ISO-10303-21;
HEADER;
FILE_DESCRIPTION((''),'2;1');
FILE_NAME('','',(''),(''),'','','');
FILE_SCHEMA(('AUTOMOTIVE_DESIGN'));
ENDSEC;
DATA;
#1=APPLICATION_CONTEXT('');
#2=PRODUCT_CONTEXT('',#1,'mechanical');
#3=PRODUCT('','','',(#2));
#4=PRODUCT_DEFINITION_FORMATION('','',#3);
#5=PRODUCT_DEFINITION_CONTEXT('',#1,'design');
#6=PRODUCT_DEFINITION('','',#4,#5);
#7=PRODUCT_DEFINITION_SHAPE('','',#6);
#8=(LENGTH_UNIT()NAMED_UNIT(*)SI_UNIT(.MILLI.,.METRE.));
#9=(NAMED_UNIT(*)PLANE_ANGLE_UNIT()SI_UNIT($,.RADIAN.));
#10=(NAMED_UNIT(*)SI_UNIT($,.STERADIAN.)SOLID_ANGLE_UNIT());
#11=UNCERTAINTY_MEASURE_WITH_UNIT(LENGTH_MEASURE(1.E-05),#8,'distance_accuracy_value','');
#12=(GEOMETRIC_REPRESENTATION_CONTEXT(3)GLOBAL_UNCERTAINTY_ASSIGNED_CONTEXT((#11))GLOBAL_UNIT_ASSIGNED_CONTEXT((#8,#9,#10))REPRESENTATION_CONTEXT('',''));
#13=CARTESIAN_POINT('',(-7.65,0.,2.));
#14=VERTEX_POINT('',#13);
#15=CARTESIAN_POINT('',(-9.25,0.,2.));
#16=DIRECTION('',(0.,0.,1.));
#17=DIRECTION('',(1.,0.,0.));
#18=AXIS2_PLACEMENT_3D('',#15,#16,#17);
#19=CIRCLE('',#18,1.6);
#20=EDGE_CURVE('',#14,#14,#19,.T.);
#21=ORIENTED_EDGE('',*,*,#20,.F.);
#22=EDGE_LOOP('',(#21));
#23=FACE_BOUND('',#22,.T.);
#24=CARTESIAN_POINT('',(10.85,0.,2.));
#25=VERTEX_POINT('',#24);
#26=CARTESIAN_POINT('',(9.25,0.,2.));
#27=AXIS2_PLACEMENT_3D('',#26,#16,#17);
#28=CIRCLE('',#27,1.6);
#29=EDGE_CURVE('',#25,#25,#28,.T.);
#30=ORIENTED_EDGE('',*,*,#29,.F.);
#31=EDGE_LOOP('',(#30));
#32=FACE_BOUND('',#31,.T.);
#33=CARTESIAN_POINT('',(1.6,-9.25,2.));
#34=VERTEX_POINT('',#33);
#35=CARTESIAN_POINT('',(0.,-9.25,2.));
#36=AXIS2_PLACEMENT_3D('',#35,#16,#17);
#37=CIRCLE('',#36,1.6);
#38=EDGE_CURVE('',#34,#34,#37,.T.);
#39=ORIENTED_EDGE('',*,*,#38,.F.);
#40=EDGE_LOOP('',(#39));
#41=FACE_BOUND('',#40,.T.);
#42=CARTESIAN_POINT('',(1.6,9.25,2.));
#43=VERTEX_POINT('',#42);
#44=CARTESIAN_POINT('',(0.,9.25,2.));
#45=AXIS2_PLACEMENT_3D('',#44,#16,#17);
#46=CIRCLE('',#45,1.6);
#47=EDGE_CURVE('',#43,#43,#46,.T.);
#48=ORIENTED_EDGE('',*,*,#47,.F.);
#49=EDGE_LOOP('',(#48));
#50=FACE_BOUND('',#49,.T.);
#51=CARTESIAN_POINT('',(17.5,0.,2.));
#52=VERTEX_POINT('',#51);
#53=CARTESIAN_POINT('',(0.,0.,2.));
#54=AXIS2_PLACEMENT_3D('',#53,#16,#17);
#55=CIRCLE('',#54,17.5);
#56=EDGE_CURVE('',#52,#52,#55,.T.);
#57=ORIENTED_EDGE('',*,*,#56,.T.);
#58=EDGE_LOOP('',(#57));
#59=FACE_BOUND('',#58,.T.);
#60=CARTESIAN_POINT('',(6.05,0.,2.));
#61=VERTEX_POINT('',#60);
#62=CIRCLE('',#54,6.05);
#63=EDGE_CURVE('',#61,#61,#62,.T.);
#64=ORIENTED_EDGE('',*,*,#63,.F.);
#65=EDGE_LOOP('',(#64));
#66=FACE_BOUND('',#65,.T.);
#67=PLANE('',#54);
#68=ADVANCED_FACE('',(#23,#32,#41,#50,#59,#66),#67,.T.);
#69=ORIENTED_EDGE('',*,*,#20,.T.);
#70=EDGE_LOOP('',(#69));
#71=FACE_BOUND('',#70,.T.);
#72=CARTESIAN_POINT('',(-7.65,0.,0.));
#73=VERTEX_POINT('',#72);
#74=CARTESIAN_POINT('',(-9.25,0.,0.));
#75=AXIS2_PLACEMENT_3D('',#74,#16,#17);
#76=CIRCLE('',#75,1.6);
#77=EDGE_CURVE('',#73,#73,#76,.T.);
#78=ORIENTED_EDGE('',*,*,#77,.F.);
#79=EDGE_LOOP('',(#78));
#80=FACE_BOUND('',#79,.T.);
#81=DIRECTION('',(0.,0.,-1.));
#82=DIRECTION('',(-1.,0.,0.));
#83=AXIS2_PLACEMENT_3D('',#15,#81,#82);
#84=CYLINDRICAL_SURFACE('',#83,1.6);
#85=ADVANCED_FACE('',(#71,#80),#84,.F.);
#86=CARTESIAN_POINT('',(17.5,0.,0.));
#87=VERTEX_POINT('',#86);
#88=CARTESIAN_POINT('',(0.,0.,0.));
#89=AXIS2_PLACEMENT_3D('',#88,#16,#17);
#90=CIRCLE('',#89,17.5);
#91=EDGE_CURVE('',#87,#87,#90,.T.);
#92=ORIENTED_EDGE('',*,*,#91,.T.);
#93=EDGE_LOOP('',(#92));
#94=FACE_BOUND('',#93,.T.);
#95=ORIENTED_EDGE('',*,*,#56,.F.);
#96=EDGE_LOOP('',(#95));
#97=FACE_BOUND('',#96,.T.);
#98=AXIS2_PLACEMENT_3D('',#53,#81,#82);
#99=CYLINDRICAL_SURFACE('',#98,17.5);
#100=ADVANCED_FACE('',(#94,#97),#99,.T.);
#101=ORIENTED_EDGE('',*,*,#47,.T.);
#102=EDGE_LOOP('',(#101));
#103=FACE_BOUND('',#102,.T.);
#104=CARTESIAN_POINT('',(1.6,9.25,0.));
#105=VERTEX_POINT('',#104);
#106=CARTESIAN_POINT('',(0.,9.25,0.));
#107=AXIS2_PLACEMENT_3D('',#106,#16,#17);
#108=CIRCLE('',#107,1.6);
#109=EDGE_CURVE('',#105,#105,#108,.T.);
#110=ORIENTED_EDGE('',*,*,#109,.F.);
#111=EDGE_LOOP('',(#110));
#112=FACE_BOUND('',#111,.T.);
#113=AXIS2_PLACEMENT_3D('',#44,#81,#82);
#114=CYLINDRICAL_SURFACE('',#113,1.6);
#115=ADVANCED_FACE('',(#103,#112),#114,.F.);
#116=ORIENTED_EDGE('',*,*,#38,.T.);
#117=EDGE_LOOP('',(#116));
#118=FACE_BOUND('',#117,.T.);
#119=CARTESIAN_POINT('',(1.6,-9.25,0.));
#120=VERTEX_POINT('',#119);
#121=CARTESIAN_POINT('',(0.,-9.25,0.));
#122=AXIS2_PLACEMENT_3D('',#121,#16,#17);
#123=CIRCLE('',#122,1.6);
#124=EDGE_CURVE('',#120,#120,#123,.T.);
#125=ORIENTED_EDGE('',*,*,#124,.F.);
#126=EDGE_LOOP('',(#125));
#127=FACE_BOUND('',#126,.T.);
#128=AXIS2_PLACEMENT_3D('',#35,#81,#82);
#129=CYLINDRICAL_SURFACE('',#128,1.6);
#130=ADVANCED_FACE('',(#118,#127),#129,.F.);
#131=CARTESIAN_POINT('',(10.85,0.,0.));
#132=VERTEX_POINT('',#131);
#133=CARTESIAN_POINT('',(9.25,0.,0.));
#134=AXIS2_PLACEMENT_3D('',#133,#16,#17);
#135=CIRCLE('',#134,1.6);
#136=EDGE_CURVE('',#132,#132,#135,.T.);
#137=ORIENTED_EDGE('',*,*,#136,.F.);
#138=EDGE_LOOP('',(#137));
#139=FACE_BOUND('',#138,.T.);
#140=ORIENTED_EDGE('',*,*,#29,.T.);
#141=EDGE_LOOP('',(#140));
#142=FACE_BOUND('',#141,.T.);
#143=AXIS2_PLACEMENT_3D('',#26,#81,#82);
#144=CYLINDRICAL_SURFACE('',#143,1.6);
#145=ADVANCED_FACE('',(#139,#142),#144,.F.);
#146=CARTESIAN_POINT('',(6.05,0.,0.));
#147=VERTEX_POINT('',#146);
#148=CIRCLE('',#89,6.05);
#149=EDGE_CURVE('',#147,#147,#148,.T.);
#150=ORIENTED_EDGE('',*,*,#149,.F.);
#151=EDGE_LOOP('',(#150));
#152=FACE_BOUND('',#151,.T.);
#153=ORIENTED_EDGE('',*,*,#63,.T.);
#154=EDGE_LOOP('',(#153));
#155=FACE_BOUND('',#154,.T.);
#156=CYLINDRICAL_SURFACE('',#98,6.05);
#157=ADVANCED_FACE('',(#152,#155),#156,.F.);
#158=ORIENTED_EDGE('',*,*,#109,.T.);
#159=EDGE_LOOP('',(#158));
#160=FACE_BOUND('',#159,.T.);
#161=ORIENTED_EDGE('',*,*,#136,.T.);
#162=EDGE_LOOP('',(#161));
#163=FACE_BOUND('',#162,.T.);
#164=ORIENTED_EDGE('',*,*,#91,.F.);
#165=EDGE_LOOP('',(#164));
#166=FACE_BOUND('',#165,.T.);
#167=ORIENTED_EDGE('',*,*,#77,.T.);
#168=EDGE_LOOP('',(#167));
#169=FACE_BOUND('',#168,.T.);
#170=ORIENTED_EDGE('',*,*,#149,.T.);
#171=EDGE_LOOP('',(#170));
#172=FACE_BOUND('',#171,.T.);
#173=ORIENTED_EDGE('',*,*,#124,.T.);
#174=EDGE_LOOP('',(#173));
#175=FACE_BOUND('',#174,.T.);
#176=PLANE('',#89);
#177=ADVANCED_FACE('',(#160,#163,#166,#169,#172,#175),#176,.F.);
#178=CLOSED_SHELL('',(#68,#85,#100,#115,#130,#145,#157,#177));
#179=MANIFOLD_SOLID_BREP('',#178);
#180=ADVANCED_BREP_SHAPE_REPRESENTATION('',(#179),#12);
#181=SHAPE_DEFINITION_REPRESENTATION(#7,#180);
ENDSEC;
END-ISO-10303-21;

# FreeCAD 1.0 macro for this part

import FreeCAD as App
import Part
import Sketcher

doc = App.newDocument("Part")
body = doc.addObject("PartDesign::Body", "Body")

sketch1 = body.newObject("Sketcher::SketchObject", "Sketch")
sketch1.AttachmentSupport = (doc.getObject("XY_Plane"), [""])
sketch1.MapMode = "FlatFace"
sketch1.addGeometry([
    Part.Circle(App.Vector(0, 0, 0), App.Vector(0, 0, 1), 17.5),
    Part.Circle(App.Vector(0, -9.2, 0), App.Vector(0, 0, 1), 1.6),
    Part.Circle(App.Vector(-9.2, 0, 0), App.Vector(0, 0, 1), 1.6),
    Part.Circle(App.Vector(0, 0, 0), App.Vector(0, 0, 1), 6),
    Part.Circle(App.Vector(9.2, 0, 0), App.Vector(0, 0, 1), 1.6),
    Part.Circle(App.Vector(0, 9.2, 0), App.Vector(0, 0, 1), 1.6),
], False)
sketch1.addConstraint([
    Sketcher.Constraint("Coincident", 0, 3, -1, 1),
    Sketcher.Constraint("Coincident", 3, 3, -1, 1),
    Sketcher.Constraint("Equal", 1, 2),
    Sketcher.Constraint("Equal", 2, 4),
    Sketcher.Constraint("Equal", 4, 5),
    Sketcher.Constraint("Symmetric", 2, 3, 4, 3, -1, 1),
    Sketcher.Constraint("Symmetric", 1, 3, 5, 3, -1, 1),
    Sketcher.Constraint("PointOnObject", 1, 3, -2),
    Sketcher.Constraint("PointOnObject", 2, 3, -1),
    Sketcher.Constraint("Diameter", 0, 35.0),
    Sketcher.Constraint("Diameter", 1, 3.2),
    Sketcher.Constraint("Diameter", 3, 12.1),
    Sketcher.Constraint("DistanceX", 2, 3, 4, 3, 18.5),
    Sketcher.Constraint("DistanceY", 1, 3, 5, 3, 18.5),
])
pad1 = body.newObject("PartDesign::Pad", "Pad")
pad1.Profile = sketch1
pad1.Length = 2

doc.recompute()
